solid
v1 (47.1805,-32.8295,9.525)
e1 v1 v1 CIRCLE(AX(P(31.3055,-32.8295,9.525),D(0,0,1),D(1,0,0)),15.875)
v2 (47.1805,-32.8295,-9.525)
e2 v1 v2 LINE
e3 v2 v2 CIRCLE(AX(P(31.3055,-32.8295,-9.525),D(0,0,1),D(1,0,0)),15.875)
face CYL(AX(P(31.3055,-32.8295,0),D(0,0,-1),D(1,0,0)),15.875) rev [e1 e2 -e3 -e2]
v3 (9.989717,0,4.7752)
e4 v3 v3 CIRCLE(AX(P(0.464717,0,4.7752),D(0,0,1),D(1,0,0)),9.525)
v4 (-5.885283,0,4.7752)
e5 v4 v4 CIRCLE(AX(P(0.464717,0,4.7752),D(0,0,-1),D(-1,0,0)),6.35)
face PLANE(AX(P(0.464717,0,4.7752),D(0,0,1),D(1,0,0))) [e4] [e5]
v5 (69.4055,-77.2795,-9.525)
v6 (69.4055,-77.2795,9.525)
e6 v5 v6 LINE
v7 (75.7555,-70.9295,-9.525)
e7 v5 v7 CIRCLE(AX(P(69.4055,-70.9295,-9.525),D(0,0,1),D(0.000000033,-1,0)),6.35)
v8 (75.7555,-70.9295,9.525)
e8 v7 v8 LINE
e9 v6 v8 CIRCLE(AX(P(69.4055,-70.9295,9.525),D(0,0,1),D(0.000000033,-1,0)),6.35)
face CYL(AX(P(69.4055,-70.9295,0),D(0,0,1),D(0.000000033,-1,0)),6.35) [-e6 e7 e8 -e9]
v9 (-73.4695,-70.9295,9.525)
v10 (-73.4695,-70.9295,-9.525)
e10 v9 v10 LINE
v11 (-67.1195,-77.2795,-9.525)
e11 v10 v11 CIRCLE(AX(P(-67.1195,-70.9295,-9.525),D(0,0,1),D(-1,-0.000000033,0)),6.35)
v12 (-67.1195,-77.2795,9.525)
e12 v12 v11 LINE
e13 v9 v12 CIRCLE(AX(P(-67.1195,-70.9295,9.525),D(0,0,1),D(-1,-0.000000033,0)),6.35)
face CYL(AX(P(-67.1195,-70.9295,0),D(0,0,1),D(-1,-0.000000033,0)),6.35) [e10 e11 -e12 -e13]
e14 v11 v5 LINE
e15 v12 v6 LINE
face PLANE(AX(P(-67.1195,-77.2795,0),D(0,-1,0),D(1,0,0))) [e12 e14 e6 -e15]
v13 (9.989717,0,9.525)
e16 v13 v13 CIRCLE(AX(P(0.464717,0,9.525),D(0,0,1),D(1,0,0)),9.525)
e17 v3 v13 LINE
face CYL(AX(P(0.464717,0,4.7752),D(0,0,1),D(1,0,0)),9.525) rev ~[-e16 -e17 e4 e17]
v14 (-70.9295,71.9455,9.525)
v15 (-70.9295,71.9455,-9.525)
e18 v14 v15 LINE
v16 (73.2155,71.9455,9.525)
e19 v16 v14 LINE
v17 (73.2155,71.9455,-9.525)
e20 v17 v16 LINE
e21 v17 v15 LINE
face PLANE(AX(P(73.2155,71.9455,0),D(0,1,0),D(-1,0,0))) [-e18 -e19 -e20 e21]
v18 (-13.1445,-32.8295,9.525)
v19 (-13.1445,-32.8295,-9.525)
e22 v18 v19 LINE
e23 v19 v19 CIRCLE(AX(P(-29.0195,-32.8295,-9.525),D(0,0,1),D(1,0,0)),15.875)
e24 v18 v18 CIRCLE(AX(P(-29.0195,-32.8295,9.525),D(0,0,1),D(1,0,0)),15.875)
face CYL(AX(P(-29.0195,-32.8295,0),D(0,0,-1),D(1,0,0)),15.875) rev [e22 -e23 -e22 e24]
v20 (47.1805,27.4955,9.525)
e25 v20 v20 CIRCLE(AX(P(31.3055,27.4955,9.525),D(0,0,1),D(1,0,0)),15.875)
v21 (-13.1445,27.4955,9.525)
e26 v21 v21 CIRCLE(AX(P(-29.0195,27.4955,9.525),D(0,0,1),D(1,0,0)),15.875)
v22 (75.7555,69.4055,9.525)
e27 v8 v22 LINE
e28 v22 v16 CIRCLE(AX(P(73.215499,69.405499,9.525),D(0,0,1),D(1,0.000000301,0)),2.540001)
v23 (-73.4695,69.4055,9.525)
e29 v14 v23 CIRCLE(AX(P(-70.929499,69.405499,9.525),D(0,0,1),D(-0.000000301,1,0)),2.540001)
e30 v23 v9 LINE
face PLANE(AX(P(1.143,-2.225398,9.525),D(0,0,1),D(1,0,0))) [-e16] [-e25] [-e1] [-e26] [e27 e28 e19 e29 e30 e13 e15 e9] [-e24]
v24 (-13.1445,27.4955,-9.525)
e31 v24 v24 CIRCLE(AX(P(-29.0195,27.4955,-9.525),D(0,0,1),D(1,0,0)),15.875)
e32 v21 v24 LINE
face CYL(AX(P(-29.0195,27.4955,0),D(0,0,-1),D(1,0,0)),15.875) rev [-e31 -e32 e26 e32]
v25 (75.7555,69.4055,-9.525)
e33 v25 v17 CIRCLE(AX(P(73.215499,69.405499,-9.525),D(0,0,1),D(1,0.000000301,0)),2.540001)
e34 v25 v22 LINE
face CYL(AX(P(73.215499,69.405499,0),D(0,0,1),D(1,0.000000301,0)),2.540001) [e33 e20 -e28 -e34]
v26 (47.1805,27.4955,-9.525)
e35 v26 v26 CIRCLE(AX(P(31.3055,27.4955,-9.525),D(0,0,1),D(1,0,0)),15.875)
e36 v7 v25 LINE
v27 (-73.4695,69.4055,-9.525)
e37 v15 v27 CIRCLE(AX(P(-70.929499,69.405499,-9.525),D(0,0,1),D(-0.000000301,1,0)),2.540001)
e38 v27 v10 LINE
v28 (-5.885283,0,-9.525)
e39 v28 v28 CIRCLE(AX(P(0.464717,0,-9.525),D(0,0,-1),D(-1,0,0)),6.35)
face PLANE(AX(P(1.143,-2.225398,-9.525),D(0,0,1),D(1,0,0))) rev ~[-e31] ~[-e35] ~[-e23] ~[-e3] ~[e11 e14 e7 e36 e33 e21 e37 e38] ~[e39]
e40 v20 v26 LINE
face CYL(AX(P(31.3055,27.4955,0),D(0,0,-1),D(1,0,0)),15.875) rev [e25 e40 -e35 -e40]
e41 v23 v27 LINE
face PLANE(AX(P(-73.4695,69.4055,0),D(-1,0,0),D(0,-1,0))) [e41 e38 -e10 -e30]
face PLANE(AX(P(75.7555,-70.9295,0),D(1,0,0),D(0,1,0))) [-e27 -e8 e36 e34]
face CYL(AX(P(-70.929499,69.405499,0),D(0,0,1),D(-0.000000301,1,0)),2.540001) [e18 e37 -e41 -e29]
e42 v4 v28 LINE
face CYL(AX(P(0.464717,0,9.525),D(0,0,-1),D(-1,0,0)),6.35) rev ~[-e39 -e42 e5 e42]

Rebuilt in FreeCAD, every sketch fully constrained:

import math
import FreeCAD as App
import Part
import Sketcher
Q = App.Units.Quantity

doc = App.newDocument("Part")
body = doc.addObject("PartDesign::Body", "Body")

# Sketch on XY plane
sketch1 = doc.addObject("Sketcher::SketchObject", "Sketch")
body.addObject(sketch1)
sketch1.AttachmentSupport = (doc.XY_Plane, [""])
sketch1.MapMode = "FlatFace"
sketch1.addGeometry(Part.LineSegment(App.Vector(-67.1, -77.3, 0), App.Vector(69.4, -77.3, 0)), False)
sketch1.addGeometry(Part.ArcOfCircle(Part.Circle(App.Vector(69.4, -70.9, 0), App.Vector(0, 0, 1), 6.4), math.radians(-90), math.radians(0)), False)
sketch1.addGeometry(Part.LineSegment(App.Vector(75.8, -70.9, 0), App.Vector(75.8, 69.4, 0)), False)
sketch1.addGeometry(Part.ArcOfCircle(Part.Circle(App.Vector(73.2, 69.4, 0), App.Vector(0, 0, 1), 2.5), math.radians(0), math.radians(90)), False)
sketch1.addGeometry(Part.LineSegment(App.Vector(73.2, 71.9, 0), App.Vector(-70.9, 71.9, 0)), False)
sketch1.addGeometry(Part.ArcOfCircle(Part.Circle(App.Vector(-70.9, 69.4, 0), App.Vector(0, 0, 1), 2.5), math.radians(90), math.radians(180)), False)
sketch1.addGeometry(Part.LineSegment(App.Vector(-73.5, 69.4, 0), App.Vector(-73.5, -70.9, 0)), False)
sketch1.addGeometry(Part.ArcOfCircle(Part.Circle(App.Vector(-67.1, -70.9, 0), App.Vector(0, 0, 1), 6.4), math.radians(-180), math.radians(-90)), False)
sketch1.addGeometry(Part.Circle(App.Vector(-29, -32.8, 0), App.Vector(0, 0, 1), 15.9), False)
sketch1.addGeometry(Part.Circle(App.Vector(31.3, -32.8, 0), App.Vector(0, 0, 1), 15.9), False)
sketch1.addGeometry(Part.Circle(App.Vector(-29, 27.5, 0), App.Vector(0, 0, 1), 15.9), False)
sketch1.addGeometry(Part.Circle(App.Vector(31.3, 27.5, 0), App.Vector(0, 0, 1), 15.9), False)
sketch1.addConstraint(Sketcher.Constraint("Tangent", 0, 2, 1, 1))
sketch1.addConstraint(Sketcher.Constraint("Tangent", 1, 2, 2, 1))
sketch1.addConstraint(Sketcher.Constraint("Tangent", 2, 2, 3, 1))
sketch1.addConstraint(Sketcher.Constraint("Tangent", 3, 2, 4, 1))
sketch1.addConstraint(Sketcher.Constraint("Tangent", 4, 2, 5, 1))
sketch1.addConstraint(Sketcher.Constraint("Tangent", 5, 2, 6, 1))
sketch1.addConstraint(Sketcher.Constraint("Tangent", 6, 2, 7, 1))
sketch1.addConstraint(Sketcher.Constraint("Tangent", 7, 2, 0, 1))
sketch1.addConstraint(Sketcher.Constraint("Horizontal", 0))
sketch1.addConstraint(Sketcher.Constraint("Vertical", 2))
sketch1.addConstraint(Sketcher.Constraint("Horizontal", 4))
sketch1.addConstraint(Sketcher.Constraint("Vertical", 6))
sketch1.addConstraint(Sketcher.Constraint("Equal", 3, 5))
sketch1.addConstraint(Sketcher.Constraint("Equal", 1, 7))
sketch1.addConstraint(Sketcher.Constraint("Equal", 8, 9))
sketch1.addConstraint(Sketcher.Constraint("Equal", 9, 10))
sketch1.addConstraint(Sketcher.Constraint("Equal", 10, 11))
sketch1.addConstraint(Sketcher.Constraint("Horizontal", 8, 3, 9, 3))
sketch1.addConstraint(Sketcher.Constraint("Horizontal", 10, 3, 11, 3))
sketch1.addConstraint(Sketcher.Constraint("Vertical", 8, 3, 10, 3))
sketch1.addConstraint(Sketcher.Constraint("Vertical", 9, 3, 11, 3))
sketch1.addConstraint(Sketcher.Constraint("Radius", 3, Q("0.1 in")))
sketch1.addConstraint(Sketcher.Constraint("Diameter", 8, Q("1.25 in")))
sketch1.addConstraint(Sketcher.Constraint("Radius", 1, Q("0.25 in")))
sketch1.addConstraint(Sketcher.Constraint("DistanceX", 7, 3, 8, 3, Q("1.5 in")))
sketch1.addConstraint(Sketcher.Constraint("DistanceY", 7, 3, 8, 3, Q("1.5 in")))
sketch1.addConstraint(Sketcher.Constraint("DistanceX", 9, 3, 1, 3, Q("1.5 in")))
sketch1.addConstraint(Sketcher.Constraint("DistanceX", 0, 1, 0, 2, Q("5.375 in")))
sketch1.addConstraint(Sketcher.Constraint("DistanceY", 2, 1, 2, 2, Q("5.525 in")))
sketch1.addConstraint(Sketcher.Constraint("DistanceY", 10, 3, 5, 3, Q("1.65 in")))
sketch1.addConstraint(Sketcher.Constraint("DistanceX", -1, 1, 1, 3, Q("2.7325 in")))
sketch1.addConstraint(Sketcher.Constraint("DistanceY", 1, 3, -1, 1, Q("2.7925 in")))
pad1 = doc.addObject("PartDesign::Pad", "Pad")
body.addObject(pad1)
pad1.Profile = sketch1
pad1.Length = Q("0.75 in")
pad1.Midplane = True

# Sketch on XY plane
sketch2 = doc.addObject("Sketcher::SketchObject", "Sketch001")
body.addObject(sketch2)
sketch2.AttachmentSupport = (doc.XY_Plane, [""])
sketch2.MapMode = "FlatFace"
sketch2.AttachmentOffset = App.Placement(App.Vector(0, 0, 0.375 * 25.4), App.Rotation())
sketch2.addGeometry(Part.Circle(App.Vector(0, 0, 0), App.Vector(0, 0, 1), 6), False)
sketch2.addConstraint(Sketcher.Constraint("PointOnObject", 0, 3, -1))
sketch2.addConstraint(Sketcher.Constraint("Diameter", 0, Q("0.5 in")))
sketch2.addConstraint(Sketcher.Constraint("DistanceX", -1, 1, 0, 3, 0.464717))
doc.recompute()
hole = doc.addObject("PartDesign::Hole", "Hole")
body.addObject(hole)
hole.Profile = sketch2
hole.ThreadType = "None"
hole.Diameter = Q("0.5 in")
hole.DepthType = "ThroughAll"
hole.HoleCutType = "Counterbore"
hole.HoleCutDiameter = Q("0.75 in")
hole.HoleCutDepth = Q("0.187 in")

doc.recompute()
